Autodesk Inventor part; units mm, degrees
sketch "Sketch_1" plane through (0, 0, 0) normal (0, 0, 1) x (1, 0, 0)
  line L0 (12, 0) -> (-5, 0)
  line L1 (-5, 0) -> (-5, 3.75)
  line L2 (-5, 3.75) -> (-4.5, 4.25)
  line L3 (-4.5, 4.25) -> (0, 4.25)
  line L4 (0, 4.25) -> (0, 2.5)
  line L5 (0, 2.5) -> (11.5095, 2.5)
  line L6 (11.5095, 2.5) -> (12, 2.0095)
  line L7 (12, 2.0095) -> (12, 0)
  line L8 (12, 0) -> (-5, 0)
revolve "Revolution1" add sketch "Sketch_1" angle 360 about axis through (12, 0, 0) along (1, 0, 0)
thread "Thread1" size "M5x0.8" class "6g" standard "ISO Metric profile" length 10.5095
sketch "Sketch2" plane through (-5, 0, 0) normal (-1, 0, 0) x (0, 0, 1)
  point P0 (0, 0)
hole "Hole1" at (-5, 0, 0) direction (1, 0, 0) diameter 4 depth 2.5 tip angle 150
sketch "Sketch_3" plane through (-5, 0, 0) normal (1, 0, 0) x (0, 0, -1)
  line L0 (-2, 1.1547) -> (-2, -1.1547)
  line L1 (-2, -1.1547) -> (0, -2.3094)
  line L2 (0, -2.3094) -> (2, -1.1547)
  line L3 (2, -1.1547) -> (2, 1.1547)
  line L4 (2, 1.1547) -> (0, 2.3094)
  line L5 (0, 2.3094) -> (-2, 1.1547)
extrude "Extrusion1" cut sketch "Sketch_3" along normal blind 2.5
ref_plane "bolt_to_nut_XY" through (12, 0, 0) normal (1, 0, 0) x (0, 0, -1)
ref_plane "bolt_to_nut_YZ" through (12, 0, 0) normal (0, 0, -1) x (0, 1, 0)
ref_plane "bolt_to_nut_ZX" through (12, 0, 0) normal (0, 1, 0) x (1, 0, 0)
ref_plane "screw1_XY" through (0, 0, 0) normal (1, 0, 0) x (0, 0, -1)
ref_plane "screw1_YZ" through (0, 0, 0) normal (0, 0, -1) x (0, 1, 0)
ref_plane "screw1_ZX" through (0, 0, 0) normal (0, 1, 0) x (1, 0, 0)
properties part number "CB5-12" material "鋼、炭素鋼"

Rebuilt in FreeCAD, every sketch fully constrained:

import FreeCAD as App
import Part
import Sketcher
Q = App.Units.Quantity


def add_polygon(sketch, points):
    """Adds a closed chain of lines whose ends are joined by coincident constraints."""
    first, n = sketch.GeometryCount, len(points)
    for a, b in zip(points, points[1:] + points[:1]):
        sketch.addGeometry(Part.LineSegment(App.Vector(*a, 0), App.Vector(*b, 0)), False)
    for i in range(n):
        sketch.addConstraint(Sketcher.Constraint("Coincident", first + i, 2, first + (i + 1) % n, 1))

doc = App.newDocument("Part")
body = doc.addObject("PartDesign::Body", "Body")

# Sketch on XY plane
sketch1 = body.newObject("Sketcher::SketchObject", "Sketch")
sketch1.AttachmentSupport = (doc.getObject("XY_Plane"), [""])
sketch1.MapMode = "FlatFace"
add_polygon(sketch1, [(-5, 0), (12, 0), (12, 2), (11.5, 2.5), (0, 2.5), (0, 4.2), (-4.5, 4.2), (-5, 3.8)])  # lines 0-7
sketch1.addConstraint([
    Sketcher.Constraint("Horizontal", 0),
    Sketcher.Constraint("Vertical", 1),
    Sketcher.Constraint("Horizontal", 3),
    Sketcher.Constraint("Vertical", 4),
    Sketcher.Constraint("Horizontal", 5),
    Sketcher.Constraint("Vertical", 7),
    Sketcher.Constraint("PointOnObject", 0, 2, -1),
    Sketcher.Constraint("PointOnObject", 3, 2, -2),
    Sketcher.Constraint("Perpendicular", 2, 6),
    Sketcher.Constraint("DistanceX", 0, 1, 0, 2, 17.0),
    Sketcher.Constraint("Angle", 2, Q("135 deg")),
    Sketcher.Constraint("DistanceX", 5, 2, 5, 1, 4.5),
    Sketcher.Constraint("DistanceX", -1, 1, 0, 2, 12.0),
    Sketcher.Constraint("DistanceY", 4, 1, 4, 2, 1.75),
    Sketcher.Constraint("DistanceY", 7, 2, 7, 1, 3.75),
    Sketcher.Constraint("DistanceX", 3, 2, 3, 1, 11.5095),
])
revolution = body.newObject("PartDesign::Revolution", "Revolution")
revolution.Profile = sketch1
revolution.ReferenceAxis = (sketch1, ["H_Axis"])
revolution.Angle = 360

# Sketch on YZ plane
sketch2 = body.newObject("Sketcher::SketchObject", "Sketch001")
sketch2.AttachmentSupport = (doc.getObject("YZ_Plane"), [""])
sketch2.MapMode = "FlatFace"
sketch2.AttachmentOffset = App.Placement(App.Vector(0, 0, -5), App.Rotation())
sketch2.addGeometry(Part.Circle(App.Vector(0, 0, 0), App.Vector(0, 0, 1), 2), False)
sketch2.addConstraint([
    Sketcher.Constraint("Coincident", 0, 3, -1, 1),
    Sketcher.Constraint("Diameter", 0, 4.0),
])
doc.recompute()
hole = body.newObject("PartDesign::Hole", "Hole")
hole.Profile = sketch2
hole.ThreadType = "None"
hole.Diameter = 4
hole.DepthType = "Dimension"
hole.Depth = 2.5
hole.DrillPoint = "Angled"
hole.DrillPointAngle = 150
hole.Reversed = True

# Sketch on YZ plane
sketch3 = body.newObject("Sketcher::SketchObject", "Sketch002")
sketch3.AttachmentSupport = (doc.getObject("YZ_Plane"), [""])
sketch3.MapMode = "FlatFace"
sketch3.AttachmentOffset = App.Placement(App.Vector(0, 0, -5), App.Rotation())
add_polygon(sketch3, [(2.3, 0), (1.2, 2), (-1.2, 2), (-2.3, 0), (-1.2, -2), (1.2, -2)])  # lines 0-5
sketch3.addConstraint([
    Sketcher.Constraint("Horizontal", 1),
    Sketcher.Constraint("Horizontal", 4),
    Sketcher.Constraint("Symmetric", 0, 2, 3, 2, -1, 1),
    Sketcher.Constraint("Symmetric", 2, 2, 5, 2, -1, 1),
    Sketcher.Constraint("PointOnObject", 2, 2, -1),
    Sketcher.Constraint("Parallel", 2, 5),
    Sketcher.Constraint("Vertical", 1, 2, 3, 2),
    Sketcher.Constraint("Angle", 0, Q("120 deg")),
    Sketcher.Constraint("DistanceY", -1, 1, 0, 2, 2.0),
    Sketcher.Constraint("DistanceX", 1, 2, 1, 1, 2.3094),
])
pocket1 = body.newObject("PartDesign::Pocket", "Pocket")
pocket1.Profile = sketch3
pocket1.Length = 2.5
pocket1.Reversed = True

doc.recompute()
